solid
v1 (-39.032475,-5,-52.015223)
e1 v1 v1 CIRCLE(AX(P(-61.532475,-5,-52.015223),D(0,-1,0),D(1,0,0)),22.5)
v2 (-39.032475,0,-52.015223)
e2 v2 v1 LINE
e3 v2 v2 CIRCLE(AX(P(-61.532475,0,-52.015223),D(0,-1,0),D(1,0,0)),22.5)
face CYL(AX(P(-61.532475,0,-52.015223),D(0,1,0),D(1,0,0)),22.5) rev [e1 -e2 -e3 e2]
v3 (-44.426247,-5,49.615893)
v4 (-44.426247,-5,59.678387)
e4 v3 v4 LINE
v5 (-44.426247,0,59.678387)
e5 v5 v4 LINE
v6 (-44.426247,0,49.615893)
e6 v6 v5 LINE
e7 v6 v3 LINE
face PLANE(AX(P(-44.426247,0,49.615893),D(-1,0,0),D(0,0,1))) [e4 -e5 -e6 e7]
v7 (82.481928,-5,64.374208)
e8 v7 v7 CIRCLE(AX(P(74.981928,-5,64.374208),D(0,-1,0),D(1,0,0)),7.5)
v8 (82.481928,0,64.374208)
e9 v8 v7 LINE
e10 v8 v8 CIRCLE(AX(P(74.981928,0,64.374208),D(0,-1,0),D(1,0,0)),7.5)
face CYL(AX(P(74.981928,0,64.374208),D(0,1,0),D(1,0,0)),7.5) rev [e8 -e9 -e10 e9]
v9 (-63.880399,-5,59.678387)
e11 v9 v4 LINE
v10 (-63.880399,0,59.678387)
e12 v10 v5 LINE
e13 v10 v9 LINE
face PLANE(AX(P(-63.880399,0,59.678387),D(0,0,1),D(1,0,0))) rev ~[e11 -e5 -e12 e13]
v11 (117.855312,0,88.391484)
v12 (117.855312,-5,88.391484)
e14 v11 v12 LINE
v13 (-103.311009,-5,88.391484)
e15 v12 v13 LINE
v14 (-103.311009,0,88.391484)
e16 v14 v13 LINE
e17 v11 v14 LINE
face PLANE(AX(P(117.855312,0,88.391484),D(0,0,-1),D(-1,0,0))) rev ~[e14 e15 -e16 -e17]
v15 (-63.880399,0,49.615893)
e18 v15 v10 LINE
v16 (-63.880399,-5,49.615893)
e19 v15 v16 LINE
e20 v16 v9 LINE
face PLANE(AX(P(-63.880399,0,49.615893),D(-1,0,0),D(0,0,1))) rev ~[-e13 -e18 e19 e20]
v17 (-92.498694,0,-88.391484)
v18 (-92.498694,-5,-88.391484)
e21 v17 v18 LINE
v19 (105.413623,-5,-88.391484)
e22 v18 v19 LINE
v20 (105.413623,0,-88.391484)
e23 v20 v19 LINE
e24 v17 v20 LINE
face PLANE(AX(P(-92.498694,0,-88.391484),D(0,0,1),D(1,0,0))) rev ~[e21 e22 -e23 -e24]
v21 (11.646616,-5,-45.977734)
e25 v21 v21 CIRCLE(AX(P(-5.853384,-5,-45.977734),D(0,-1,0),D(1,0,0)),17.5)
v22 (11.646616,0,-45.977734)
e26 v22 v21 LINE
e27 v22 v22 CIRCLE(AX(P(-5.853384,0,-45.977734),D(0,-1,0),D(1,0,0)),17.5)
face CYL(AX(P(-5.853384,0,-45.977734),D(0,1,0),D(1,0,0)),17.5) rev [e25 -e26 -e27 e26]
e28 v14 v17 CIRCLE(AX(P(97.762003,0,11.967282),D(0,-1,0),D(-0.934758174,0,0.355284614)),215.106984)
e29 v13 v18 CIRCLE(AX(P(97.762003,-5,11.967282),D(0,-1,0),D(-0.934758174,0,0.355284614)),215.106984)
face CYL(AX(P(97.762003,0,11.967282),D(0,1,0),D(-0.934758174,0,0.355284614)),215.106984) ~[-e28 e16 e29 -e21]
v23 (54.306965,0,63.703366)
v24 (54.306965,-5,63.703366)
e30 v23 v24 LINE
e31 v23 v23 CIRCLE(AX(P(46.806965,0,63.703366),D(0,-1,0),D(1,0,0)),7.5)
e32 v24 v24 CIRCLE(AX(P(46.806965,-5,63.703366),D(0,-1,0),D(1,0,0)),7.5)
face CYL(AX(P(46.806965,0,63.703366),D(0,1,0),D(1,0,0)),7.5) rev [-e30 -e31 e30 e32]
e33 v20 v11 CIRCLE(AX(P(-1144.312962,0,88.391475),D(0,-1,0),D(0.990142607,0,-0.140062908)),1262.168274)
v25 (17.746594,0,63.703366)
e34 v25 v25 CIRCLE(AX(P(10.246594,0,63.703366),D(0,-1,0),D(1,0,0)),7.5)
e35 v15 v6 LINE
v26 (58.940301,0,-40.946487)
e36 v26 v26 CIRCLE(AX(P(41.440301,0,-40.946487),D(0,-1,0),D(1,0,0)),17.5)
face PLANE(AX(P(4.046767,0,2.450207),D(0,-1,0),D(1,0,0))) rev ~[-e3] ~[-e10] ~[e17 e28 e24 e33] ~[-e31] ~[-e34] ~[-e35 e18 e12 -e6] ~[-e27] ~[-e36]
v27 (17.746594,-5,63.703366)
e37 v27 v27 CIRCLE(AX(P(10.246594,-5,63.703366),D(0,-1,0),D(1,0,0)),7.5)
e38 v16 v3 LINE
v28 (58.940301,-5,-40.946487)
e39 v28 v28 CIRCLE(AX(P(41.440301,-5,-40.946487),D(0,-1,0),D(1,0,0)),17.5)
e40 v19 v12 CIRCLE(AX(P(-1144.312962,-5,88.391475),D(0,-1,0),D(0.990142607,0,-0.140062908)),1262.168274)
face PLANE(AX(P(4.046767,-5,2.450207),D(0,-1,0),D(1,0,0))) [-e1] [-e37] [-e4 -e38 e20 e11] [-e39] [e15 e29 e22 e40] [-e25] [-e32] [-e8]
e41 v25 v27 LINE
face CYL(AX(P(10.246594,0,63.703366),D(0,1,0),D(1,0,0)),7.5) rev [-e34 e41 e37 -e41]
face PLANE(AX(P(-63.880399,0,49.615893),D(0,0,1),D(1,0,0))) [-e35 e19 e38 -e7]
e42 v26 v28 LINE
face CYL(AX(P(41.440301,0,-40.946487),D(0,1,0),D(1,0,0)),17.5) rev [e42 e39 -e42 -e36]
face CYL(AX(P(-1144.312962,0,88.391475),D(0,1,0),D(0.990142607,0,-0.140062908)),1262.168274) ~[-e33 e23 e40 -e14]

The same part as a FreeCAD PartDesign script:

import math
import FreeCAD as App
import Part
import Sketcher
from FreeCAD import Vector


def add_polygon(sketch, points):
    """Adds a closed chain of lines whose ends are joined by coincident constraints."""
    first, n = sketch.GeometryCount, len(points)
    for a, b in zip(points, points[1:] + points[:1]):
        sketch.addGeometry(Part.LineSegment(App.Vector(*a, 0), App.Vector(*b, 0)), False)
    for i in range(n):
        sketch.addConstraint(Sketcher.Constraint("Coincident", first + i, 2, first + (i + 1) % n, 1))

doc = App.newDocument("Part")
body = doc.addObject("PartDesign::Body", "Body")

sketch1 = doc.addObject("Sketcher::SketchObject", "Sketch")
body.addObject(sketch1)
sketch1.AttachmentSupport = (doc.XZ_Plane, [""])
sketch1.MapMode = "FlatFace"
sketch1.addGeometry(Part.LineSegment(Vector(-92.498694, -88.391484, 0), Vector(105.413623, -88.391484, 0)), False)
sketch1.addGeometry(Part.ArcOfCircle(Part.Circle(Vector(-1144.312962, 88.391475, 0), Vector(0, 0, 1), 1262.168274), math.radians(-8.051486), math.radians(0)), False)
sketch1.addGeometry(Part.LineSegment(Vector(117.855312, 88.391484, 0), Vector(-103.311009, 88.391484, 0)), False)
sketch1.addGeometry(Part.ArcOfCircle(Part.Circle(Vector(97.762003, 11.967282, 0), Vector(0, 0, 1), 215.106984), math.radians(159.189111), math.radians(207.810763)), False)
sketch1.addGeometry(Part.Circle(Vector(-61.532475, -52.015223, 0), Vector(0, 0, 1), 22.5), False)
sketch1.addGeometry(Part.Circle(Vector(-5.853384, -45.977734, 0), Vector(0, 0, 1), 17.5), False)
sketch1.addGeometry(Part.Circle(Vector(41.440301, -40.946487, 0), Vector(0, 0, 1), 17.5), False)
add_polygon(sketch1, [(-44.426247, 49.615893), (-63.880399, 49.615893), (-63.880399, 59.678387), (-44.426247, 59.678387)])
sketch1.addGeometry(Part.Circle(Vector(10.246594, 63.703366, 0), Vector(0, 0, 1), 7.5), False)
sketch1.addGeometry(Part.Circle(Vector(46.806965, 63.703366, 0), Vector(0, 0, 1), 7.5), False)
sketch1.addGeometry(Part.Circle(Vector(74.981928, 64.374208, 0), Vector(0, 0, 1), 7.5), False)
sketch1.addConstraint([
    Sketcher.Constraint("Coincident", 0, 2, 1, 1),
    Sketcher.Constraint("Coincident", 1, 2, 2, 1),
    Sketcher.Constraint("Coincident", 2, 2, 3, 1),
    Sketcher.Constraint("Coincident", 3, 2, 0, 1),
    Sketcher.Constraint("Horizontal", 0),
    Sketcher.Constraint("Horizontal", 2),
    Sketcher.Constraint("Horizontal", 7),
    Sketcher.Constraint("Vertical", 8),
    Sketcher.Constraint("Horizontal", 9),
    Sketcher.Constraint("Vertical", 10),
    Sketcher.Constraint("Equal", 5, 6),
    Sketcher.Constraint("Equal", 11, 12),
    Sketcher.Constraint("Equal", 12, 13),
    Sketcher.Constraint("Horizontal", 11, 3, 12, 3),
    Sketcher.Constraint("Diameter", 4, 45.0),
    Sketcher.Constraint("Diameter", 5, 35.0),
    Sketcher.Constraint("Diameter", 11, 15.0),
    Sketcher.Constraint("Radius", 1, 1262.168274),
    Sketcher.Constraint("Radius", 3, 215.106984),
    Sketcher.Constraint("DistanceX", 2, 2, 2, 1, 221.166321),
    Sketcher.Constraint("DistanceX", -1, 1, 6, 3, 41.440301),
    Sketcher.Constraint("DistanceX", 7, 2, -1, 1, 63.880399),
    Sketcher.Constraint("DistanceY", 4, 3, 1, 3, 140.406698),
    Sketcher.Constraint("DistanceX", 6, 3, 3, 3, 56.321702),
    Sketcher.Constraint("DistanceY", 5, 3, 11, 3, 109.6811),
    Sketcher.Constraint("DistanceX", 0, 1, 0, 2, 197.912317),
    Sketcher.Constraint("DistanceX", 7, 2, 7, 1, 19.454152),
    Sketcher.Constraint("DistanceY", 8, 1, 8, 2, 10.062493),
    Sketcher.Constraint("DistanceX", 2, 2, -1, 1, 103.311009),
    Sketcher.Constraint("DistanceX", 4, 3, 5, 3, 55.679091),
    Sketcher.Constraint("DistanceY", 4, 3, 5, 3, 6.037489),
    Sketcher.Constraint("DistanceX", 1, 3, 5, 3, 1138.459578),
    Sketcher.Constraint("DistanceY", 6, 3, 3, 3, 52.913769),
    Sketcher.Constraint("DistanceX", 11, 3, 3, 3, 87.515409),
    Sketcher.Constraint("DistanceX", 11, 3, 12, 3, 36.560371),
    Sketcher.Constraint("DistanceY", 12, 3, 13, 3, 0.670842),
    Sketcher.Constraint("DistanceX", 5, 3, 13, 3, 80.835312),
    Sketcher.Constraint("DistanceX", 3, 3, 0, 2, 7.65162),
    Sketcher.Constraint("DistanceY", 7, 2, 2, 2, 38.775591),
    Sketcher.Constraint("DistanceY", -1, 1, 1, 3, 88.391475),
])
pad1 = doc.addObject("PartDesign::Pad", "Pad")
body.addObject(pad1)
pad1.Profile = sketch1
pad1.Length = 5

doc.recompute()
